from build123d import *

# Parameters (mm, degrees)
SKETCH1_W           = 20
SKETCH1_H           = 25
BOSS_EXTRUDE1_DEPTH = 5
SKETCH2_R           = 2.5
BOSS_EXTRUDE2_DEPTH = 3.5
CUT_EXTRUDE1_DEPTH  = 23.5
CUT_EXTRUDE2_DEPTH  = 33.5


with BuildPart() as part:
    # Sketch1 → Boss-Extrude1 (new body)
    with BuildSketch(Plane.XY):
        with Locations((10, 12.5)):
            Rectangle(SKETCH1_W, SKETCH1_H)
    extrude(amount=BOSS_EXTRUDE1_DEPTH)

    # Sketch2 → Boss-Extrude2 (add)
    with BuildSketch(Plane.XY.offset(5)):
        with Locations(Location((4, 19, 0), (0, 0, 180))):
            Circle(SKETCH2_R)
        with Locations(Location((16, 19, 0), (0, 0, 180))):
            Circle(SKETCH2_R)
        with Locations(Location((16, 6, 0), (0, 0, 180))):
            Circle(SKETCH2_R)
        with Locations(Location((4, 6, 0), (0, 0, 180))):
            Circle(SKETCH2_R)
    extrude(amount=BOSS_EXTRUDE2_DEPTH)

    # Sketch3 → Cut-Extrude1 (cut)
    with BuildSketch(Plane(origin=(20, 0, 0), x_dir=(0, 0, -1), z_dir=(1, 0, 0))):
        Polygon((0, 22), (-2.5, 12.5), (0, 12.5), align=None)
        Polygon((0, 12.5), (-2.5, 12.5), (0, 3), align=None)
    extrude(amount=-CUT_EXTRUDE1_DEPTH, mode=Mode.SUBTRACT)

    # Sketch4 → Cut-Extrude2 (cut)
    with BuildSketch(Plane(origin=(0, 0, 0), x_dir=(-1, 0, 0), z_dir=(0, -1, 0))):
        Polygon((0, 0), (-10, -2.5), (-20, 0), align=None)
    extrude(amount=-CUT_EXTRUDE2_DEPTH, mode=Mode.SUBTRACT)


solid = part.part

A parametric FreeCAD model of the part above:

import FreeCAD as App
import Part
import Sketcher

V = App.Vector
Q = App.Units.Quantity


def add_polygon(sketch, points):
    """Adds a closed chain of lines whose ends are joined by coincident constraints."""
    first, n = sketch.GeometryCount, len(points)
    for a, b in zip(points, points[1:] + points[:1]):
        sketch.addGeometry(Part.LineSegment(App.Vector(*a, 0), App.Vector(*b, 0)), False)
    for i in range(n):
        sketch.addConstraint(Sketcher.Constraint("Coincident", first + i, 2, first + (i + 1) % n, 1))

doc = App.newDocument("Part")
body = doc.addObject("PartDesign::Body", "Body")

sketch1 = body.newObject("Sketcher::SketchObject", "Sketch")
sketch1.AttachmentSupport = (doc.getObject("XY_Plane"), [""])
sketch1.MapMode = "FlatFace"
add_polygon(sketch1, [(0, 25), (0, 0), (20, 0), (20, 25)])
sketch1.addConstraint([
    Sketcher.Constraint("Vertical", 0),
    Sketcher.Constraint("Horizontal", 1),
    Sketcher.Constraint("Vertical", 2),
    Sketcher.Constraint("Horizontal", 3),
    Sketcher.Constraint("Coincident", 0, 2, -1, 1),
    Sketcher.Constraint("DistanceX", 1, 1, 1, 2, Q("20 mm")),
    Sketcher.Constraint("DistanceY", 0, 2, 0, 1, Q("25 mm")),
])
pad1 = body.newObject("PartDesign::Pad", "Pad")
pad1.Profile = sketch1
pad1.Length = 5

sketch2 = body.newObject("Sketcher::SketchObject", "Sketch001")
sketch2.AttachmentSupport = (doc.getObject("XY_Plane"), [""])
sketch2.MapMode = "FlatFace"
sketch2.AttachmentOffset = App.Placement(V(0, 0, 5), App.Rotation())
sketch2.addGeometry([
    Part.Circle(V(4, 19, 0), V(0, 0, 1), 2.5),
    Part.Circle(V(16, 19, 0), V(0, 0, 1), 2.5),
    Part.Circle(V(16, 6, 0), V(0, 0, 1), 2.5),
    Part.Circle(V(4, 6, 0), V(0, 0, 1), 2.5),
], False)
sketch2.addConstraint([
    Sketcher.Constraint("Equal", 0, 1),
    Sketcher.Constraint("Equal", 1, 2),
    Sketcher.Constraint("Equal", 2, 3),
    Sketcher.Constraint("Horizontal", 0, 3, 1, 3),
    Sketcher.Constraint("Horizontal", 2, 3, 3, 3),
    Sketcher.Constraint("Vertical", 1, 3, 2, 3),
    Sketcher.Constraint("Vertical", 0, 3, 3, 3),
    Sketcher.Constraint("Diameter", 0, Q("5 mm")),
    Sketcher.Constraint("DistanceX", -1, 1, 0, 3, Q("4 mm")),
    Sketcher.Constraint("DistanceY", -1, 1, 0, 3, Q("19 mm")),
    Sketcher.Constraint("DistanceX", -1, 1, 1, 3, Q("16 mm")),
    Sketcher.Constraint("DistanceY", -1, 1, 2, 3, Q("6 mm")),
])
pad2 = body.newObject("PartDesign::Pad", "Pad001")
pad2.Profile = sketch2
pad2.Length = 3.5

sketch3 = body.newObject("Sketcher::SketchObject", "Sketch002")
sketch3.AttachmentSupport = (doc.getObject("YZ_Plane"), [""])
sketch3.MapMode = "FlatFace"
sketch3.AttachmentOffset = App.Placement(V(0, 0, 20), App.Rotation())
add_polygon(sketch3, [(22, 0), (12.5, 2.5), (3, 0)])
sketch3.addConstraint([
    Sketcher.Constraint("Horizontal", 2),
    Sketcher.Constraint("PointOnObject", 1, 2, -1),
    Sketcher.Constraint("Equal", 0, 1),
    Sketcher.Constraint("DistanceX", 2, 1, 2, 2, Q("19 mm")),
    Sketcher.Constraint("DistanceX", -1, 1, 1, 2, Q("3 mm")),
    Sketcher.Constraint("DistanceY", -1, 1, 0, 2, Q("2.5 mm")),
])
pocket1 = body.newObject("PartDesign::Pocket", "Pocket")
pocket1.Profile = sketch3
pocket1.Length = 23.5

sketch4 = body.newObject("Sketcher::SketchObject", "Sketch003")
sketch4.AttachmentSupport = (doc.getObject("XZ_Plane"), [""])
sketch4.MapMode = "FlatFace"
add_polygon(sketch4, [(10, 2.5), (0, 0), (20, 0)])
sketch4.addConstraint([
    Sketcher.Constraint("Horizontal", 1),
    Sketcher.Constraint("Coincident", 0, 2, -1, 1),
    Sketcher.Constraint("Equal", 0, 2),
    Sketcher.Constraint("DistanceX", 1, 1, 1, 2, Q("20 mm")),
    Sketcher.Constraint("DistanceY", -1, 1, 2, 2, Q("2.5 mm")),
])
pocket2 = body.newObject("PartDesign::Pocket", "Pocket001")
pocket2.Profile = sketch4
pocket2.Length = 33.5

doc.recompute()
